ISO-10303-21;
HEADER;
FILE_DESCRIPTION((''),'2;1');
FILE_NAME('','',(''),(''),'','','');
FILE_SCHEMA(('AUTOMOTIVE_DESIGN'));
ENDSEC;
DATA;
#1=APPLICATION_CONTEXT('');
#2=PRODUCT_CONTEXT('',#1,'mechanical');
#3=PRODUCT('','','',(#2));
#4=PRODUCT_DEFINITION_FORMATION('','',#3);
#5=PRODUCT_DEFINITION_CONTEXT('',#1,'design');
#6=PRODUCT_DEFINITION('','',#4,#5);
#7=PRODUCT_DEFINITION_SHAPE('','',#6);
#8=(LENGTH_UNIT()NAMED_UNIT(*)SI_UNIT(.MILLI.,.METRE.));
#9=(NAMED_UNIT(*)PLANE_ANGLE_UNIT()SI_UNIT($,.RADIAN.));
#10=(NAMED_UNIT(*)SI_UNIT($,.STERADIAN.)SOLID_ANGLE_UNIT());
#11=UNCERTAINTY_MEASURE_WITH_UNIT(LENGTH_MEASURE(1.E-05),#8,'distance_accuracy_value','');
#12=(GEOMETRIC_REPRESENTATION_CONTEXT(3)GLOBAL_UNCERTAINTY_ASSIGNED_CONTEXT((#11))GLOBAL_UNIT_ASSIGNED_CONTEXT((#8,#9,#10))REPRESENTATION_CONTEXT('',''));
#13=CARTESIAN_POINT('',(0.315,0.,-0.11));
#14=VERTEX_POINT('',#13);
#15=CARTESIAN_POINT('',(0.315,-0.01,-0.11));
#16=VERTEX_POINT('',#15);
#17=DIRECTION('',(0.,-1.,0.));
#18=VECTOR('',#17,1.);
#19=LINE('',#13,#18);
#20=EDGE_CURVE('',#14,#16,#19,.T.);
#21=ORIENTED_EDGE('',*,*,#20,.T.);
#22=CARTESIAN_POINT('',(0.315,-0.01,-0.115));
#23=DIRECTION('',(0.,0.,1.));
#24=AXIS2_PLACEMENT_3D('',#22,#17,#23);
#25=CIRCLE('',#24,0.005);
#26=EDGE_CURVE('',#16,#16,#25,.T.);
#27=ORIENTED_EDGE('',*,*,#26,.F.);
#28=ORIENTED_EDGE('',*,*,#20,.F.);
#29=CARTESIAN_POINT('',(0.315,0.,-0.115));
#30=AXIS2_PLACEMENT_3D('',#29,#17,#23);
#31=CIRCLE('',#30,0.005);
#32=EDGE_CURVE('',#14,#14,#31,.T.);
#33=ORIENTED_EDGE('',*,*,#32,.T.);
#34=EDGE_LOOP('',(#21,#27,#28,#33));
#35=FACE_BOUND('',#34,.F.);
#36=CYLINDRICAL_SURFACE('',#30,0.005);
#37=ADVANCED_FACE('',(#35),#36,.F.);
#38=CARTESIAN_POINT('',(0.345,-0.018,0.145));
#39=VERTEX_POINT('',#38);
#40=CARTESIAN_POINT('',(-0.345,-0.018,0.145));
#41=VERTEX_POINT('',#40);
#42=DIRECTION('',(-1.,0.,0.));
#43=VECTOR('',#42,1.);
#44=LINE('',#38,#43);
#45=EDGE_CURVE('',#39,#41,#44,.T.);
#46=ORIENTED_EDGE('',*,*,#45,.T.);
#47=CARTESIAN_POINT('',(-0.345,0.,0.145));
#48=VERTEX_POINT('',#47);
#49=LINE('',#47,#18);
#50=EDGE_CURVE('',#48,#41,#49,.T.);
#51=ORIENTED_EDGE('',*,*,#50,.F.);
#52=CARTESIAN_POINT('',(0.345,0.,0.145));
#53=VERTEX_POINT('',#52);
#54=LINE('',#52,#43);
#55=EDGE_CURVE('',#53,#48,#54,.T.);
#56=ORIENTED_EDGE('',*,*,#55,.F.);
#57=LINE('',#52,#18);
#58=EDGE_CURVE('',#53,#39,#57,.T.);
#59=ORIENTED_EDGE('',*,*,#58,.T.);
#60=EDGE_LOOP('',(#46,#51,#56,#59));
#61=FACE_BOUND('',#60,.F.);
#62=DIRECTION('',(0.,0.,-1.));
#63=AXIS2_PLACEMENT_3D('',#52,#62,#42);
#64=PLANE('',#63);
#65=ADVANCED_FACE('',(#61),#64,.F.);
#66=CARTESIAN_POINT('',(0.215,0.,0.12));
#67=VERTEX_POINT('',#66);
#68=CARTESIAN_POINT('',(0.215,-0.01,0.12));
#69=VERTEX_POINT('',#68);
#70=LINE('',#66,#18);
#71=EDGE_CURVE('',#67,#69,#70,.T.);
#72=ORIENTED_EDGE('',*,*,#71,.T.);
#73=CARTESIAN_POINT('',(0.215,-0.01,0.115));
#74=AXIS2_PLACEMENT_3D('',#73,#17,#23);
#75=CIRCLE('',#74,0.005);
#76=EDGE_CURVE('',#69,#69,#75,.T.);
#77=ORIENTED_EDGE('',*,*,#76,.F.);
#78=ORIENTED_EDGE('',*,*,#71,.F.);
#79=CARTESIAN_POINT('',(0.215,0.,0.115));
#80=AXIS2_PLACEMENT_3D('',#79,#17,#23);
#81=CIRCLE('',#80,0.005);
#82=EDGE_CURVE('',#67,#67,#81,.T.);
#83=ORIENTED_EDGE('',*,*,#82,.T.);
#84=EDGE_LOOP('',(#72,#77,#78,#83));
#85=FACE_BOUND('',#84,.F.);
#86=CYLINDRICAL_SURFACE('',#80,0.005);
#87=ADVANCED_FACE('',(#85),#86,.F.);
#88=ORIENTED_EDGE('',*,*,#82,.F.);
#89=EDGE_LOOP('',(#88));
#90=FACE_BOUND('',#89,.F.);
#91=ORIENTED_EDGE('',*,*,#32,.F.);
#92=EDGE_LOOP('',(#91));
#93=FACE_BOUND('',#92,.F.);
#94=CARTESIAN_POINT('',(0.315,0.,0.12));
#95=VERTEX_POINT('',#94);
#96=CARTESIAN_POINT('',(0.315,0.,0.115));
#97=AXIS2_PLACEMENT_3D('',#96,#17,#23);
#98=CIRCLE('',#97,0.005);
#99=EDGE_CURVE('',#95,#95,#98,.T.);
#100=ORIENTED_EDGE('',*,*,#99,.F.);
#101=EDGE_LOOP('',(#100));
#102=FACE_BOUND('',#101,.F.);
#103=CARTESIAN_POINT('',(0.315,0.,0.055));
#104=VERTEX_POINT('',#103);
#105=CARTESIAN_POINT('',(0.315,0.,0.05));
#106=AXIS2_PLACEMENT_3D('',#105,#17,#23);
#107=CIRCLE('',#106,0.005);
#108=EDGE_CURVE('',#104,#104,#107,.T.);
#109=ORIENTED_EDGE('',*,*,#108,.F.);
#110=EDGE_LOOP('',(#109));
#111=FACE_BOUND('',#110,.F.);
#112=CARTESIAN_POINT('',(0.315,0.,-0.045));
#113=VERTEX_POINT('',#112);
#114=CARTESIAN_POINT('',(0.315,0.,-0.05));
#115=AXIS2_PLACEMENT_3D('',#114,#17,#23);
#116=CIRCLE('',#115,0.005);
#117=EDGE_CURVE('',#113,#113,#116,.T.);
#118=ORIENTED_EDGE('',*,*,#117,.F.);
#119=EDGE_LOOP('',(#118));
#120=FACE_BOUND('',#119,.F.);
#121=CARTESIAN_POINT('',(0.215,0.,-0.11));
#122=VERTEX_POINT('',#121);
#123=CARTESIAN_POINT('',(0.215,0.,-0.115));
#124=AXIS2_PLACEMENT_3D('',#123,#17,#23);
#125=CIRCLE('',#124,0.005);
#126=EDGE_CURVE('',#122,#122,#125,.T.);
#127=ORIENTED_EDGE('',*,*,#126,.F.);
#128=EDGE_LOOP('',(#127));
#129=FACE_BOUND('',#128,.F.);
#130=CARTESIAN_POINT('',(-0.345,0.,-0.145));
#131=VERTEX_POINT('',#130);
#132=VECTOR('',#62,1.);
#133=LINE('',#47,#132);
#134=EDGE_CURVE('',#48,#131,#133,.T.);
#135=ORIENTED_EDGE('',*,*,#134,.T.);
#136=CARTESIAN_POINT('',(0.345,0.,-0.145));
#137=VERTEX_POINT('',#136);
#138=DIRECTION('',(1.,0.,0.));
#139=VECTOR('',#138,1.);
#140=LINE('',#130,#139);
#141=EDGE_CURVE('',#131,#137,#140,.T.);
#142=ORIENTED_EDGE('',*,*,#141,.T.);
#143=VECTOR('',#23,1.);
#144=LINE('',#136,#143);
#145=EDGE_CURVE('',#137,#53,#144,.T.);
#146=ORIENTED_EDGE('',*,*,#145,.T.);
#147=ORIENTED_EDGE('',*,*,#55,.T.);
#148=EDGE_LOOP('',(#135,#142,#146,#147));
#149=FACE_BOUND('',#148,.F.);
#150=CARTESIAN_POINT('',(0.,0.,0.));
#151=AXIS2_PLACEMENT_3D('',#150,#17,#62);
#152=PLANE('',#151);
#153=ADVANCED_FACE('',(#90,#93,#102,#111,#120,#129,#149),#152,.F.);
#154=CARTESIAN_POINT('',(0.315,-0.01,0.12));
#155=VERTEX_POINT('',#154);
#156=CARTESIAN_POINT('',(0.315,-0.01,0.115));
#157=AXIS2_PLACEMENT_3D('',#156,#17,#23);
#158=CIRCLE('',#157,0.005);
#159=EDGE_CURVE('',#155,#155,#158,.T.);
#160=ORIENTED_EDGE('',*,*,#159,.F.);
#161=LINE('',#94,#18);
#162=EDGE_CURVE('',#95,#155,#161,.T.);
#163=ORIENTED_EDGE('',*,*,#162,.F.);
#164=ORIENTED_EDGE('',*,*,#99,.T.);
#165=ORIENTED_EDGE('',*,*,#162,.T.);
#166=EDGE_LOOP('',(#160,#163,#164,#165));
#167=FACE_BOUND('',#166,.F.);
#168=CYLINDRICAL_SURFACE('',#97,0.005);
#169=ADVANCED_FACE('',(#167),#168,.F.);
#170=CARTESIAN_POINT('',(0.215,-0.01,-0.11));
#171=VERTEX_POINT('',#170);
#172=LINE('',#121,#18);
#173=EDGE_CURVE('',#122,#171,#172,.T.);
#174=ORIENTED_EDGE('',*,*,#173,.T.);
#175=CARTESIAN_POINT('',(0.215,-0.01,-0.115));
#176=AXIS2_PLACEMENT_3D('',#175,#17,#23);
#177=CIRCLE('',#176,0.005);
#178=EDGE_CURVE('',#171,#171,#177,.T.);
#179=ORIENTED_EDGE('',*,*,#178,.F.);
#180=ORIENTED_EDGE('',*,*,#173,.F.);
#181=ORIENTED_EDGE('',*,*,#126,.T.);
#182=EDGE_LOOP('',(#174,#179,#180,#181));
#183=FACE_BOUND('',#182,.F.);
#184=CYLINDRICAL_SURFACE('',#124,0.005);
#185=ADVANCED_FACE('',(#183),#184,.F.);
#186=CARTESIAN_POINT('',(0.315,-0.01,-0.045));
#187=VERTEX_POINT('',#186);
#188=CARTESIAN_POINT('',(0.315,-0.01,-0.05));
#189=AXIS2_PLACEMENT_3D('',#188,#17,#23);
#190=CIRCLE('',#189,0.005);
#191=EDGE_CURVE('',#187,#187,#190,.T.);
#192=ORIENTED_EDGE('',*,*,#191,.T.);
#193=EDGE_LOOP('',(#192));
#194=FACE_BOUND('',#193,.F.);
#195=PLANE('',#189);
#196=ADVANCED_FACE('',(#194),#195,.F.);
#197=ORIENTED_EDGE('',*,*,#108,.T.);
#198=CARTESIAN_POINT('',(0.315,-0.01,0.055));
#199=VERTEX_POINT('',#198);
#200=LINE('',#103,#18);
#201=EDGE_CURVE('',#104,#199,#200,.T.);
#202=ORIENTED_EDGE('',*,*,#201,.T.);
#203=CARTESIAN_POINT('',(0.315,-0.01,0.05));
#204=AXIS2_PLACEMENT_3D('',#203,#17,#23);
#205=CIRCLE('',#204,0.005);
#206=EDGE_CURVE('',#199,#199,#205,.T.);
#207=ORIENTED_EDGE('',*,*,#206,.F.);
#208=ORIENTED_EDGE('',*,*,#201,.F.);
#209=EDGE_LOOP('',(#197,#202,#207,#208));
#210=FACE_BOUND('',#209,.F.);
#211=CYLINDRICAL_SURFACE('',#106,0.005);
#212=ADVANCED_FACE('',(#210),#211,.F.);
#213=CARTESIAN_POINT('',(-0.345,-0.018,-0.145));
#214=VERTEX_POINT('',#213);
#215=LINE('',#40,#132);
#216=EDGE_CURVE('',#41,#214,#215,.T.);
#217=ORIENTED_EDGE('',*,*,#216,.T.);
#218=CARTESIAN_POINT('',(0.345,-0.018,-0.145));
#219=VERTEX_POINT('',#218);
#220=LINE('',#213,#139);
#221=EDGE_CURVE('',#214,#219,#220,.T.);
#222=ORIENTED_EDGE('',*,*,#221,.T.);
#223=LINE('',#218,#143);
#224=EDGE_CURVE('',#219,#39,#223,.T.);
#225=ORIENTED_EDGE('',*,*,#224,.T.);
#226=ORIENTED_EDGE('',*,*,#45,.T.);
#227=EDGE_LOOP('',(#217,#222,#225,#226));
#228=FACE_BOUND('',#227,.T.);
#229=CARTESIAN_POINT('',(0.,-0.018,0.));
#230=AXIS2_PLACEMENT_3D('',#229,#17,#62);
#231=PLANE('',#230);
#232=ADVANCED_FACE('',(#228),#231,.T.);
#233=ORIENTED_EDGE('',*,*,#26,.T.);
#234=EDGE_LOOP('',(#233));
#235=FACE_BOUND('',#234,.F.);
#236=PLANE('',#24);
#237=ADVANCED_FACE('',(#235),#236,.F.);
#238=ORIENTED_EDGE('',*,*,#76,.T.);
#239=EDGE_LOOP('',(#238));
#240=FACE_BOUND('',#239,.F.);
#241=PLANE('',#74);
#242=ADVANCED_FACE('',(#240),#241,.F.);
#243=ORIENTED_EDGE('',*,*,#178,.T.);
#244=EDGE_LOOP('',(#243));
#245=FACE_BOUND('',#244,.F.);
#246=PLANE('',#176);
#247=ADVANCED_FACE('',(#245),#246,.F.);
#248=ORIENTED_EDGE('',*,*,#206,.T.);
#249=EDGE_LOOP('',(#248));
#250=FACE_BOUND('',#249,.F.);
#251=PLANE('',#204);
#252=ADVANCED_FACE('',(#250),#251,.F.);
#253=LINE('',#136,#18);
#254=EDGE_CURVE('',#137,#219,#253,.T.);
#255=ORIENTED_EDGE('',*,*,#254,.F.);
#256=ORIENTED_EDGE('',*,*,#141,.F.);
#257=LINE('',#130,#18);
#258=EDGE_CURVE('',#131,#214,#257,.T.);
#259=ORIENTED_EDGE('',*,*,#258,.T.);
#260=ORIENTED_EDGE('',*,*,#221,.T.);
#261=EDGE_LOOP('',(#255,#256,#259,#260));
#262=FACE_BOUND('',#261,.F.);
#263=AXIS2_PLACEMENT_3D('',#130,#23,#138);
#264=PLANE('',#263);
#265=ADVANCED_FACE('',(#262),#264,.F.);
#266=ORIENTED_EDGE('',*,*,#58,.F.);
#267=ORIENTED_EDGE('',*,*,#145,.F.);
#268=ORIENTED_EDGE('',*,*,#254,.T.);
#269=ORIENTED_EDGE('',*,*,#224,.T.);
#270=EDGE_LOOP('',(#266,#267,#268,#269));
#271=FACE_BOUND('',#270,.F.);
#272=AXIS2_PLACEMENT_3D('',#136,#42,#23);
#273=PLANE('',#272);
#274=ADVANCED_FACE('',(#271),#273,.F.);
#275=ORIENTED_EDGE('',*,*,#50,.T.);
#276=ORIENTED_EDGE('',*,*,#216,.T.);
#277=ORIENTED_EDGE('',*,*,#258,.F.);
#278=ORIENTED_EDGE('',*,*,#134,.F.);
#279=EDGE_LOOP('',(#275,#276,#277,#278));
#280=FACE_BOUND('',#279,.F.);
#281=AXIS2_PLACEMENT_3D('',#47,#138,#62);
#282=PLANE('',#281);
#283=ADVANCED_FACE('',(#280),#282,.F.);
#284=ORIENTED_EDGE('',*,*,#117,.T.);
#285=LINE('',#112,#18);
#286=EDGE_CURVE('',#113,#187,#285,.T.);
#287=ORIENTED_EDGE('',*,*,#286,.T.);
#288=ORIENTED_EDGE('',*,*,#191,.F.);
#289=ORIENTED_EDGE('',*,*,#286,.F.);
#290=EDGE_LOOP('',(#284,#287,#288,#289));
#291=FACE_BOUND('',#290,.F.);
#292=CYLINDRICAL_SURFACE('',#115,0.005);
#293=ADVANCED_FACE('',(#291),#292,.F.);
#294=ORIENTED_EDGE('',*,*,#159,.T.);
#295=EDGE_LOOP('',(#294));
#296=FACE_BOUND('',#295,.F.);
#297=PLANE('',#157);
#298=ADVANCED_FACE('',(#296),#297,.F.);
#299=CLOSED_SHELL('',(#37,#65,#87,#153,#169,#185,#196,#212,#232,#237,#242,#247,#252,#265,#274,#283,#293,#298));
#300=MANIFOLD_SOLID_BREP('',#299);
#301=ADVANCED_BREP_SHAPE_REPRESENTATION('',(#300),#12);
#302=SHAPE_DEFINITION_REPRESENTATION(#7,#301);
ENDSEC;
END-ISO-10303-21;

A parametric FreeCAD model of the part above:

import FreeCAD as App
import Part
import Sketcher

V = App.Vector


def add_polygon(sketch, points):
    """Adds a closed chain of lines whose ends are joined by coincident constraints."""
    first, n = sketch.GeometryCount, len(points)
    for a, b in zip(points, points[1:] + points[:1]):
        sketch.addGeometry(Part.LineSegment(App.Vector(*a, 0), App.Vector(*b, 0)), False)
    for i in range(n):
        sketch.addConstraint(Sketcher.Constraint("Coincident", first + i, 2, first + (i + 1) % n, 1))

doc = App.newDocument("Part")
body = doc.addObject("PartDesign::Body", "Body")

sketch1 = body.newObject("Sketcher::SketchObject", "Sketch")
sketch1.AttachmentSupport = (doc.getObject("XZ_Plane"), [""])
sketch1.MapMode = "FlatFace"
add_polygon(sketch1, [(-0.34, 0.14), (-0.34, -0.14), (0.34, -0.14), (0.34, 0.14)])
sketch1.addConstraint(Sketcher.Constraint("Vertical", 0))
sketch1.addConstraint(Sketcher.Constraint("Horizontal", 1))
sketch1.addConstraint(Sketcher.Constraint("Vertical", 2))
sketch1.addConstraint(Sketcher.Constraint("Horizontal", 3))
sketch1.addConstraint(Sketcher.Constraint("Symmetric", 0, 2, 2, 2, -1, 1))
sketch1.addConstraint(Sketcher.Constraint("DistanceX", 0, 2, -1, 1, 0.345))
sketch1.addConstraint(Sketcher.Constraint("DistanceY", 0, 2, 0, 1, 0.29))
pad1 = body.newObject("PartDesign::Pad", "Pad")
pad1.Profile = sketch1
pad1.Length = 0.018

sketch2 = body.newObject("Sketcher::SketchObject", "Sketch001")
sketch2.AttachmentSupport = (doc.getObject("XZ_Plane"), [""])
sketch2.MapMode = "FlatFace"
sketch2.addGeometry(Part.Circle(V(0.315, 0.05, 0), V(0, 0, 1), 0.005), False)
sketch2.addConstraint(Sketcher.Constraint("Diameter", 0, 0.01))
sketch2.addConstraint(Sketcher.Constraint("DistanceY", -1, 1, 0, 3, 0.05))
sketch2.addConstraint(Sketcher.Constraint("DistanceX", -1, 1, 0, 3, 0.315))
doc.recompute()
hole = body.newObject("PartDesign::Hole", "Hole")
hole.Profile = sketch2
hole.ThreadType = "None"
hole.Diameter = 0.01
hole.DepthType = "Dimension"
hole.Depth = 0.01
hole.DrillPoint = "Flat"
hole.Reversed = True

sketch3 = body.newObject("Sketcher::SketchObject", "Sketch002")
sketch3.AttachmentSupport = (doc.getObject("XZ_Plane"), [""])
sketch3.MapMode = "FlatFace"
sketch3.addGeometry(Part.Circle(V(0.315, -0.05, 0), V(0, 0, 1), 0.005), False)
sketch3.addConstraint(Sketcher.Constraint("Diameter", 0, 0.01))
sketch3.addConstraint(Sketcher.Constraint("DistanceY", 0, 3, -1, 1, 0.05))
sketch3.addConstraint(Sketcher.Constraint("DistanceX", -1, 1, 0, 3, 0.315))
doc.recompute()
hole2 = body.newObject("PartDesign::Hole", "Hole001")
hole2.Profile = sketch3
hole2.ThreadType = "None"
hole2.Diameter = 0.01
hole2.DepthType = "Dimension"
hole2.Depth = 0.01
hole2.DrillPoint = "Flat"
hole2.Reversed = True

sketch4 = body.newObject("Sketcher::SketchObject", "Sketch003")
sketch4.AttachmentSupport = (doc.getObject("XZ_Plane"), [""])
sketch4.MapMode = "FlatFace"
sketch4.addGeometry(Part.Circle(V(0.315, -0.115, 0), V(0, 0, 1), 0.005), False)
sketch4.addConstraint(Sketcher.Constraint("Diameter", 0, 0.01))
sketch4.addConstraint(Sketcher.Constraint("DistanceX", -1, 1, 0, 3, 0.315))
sketch4.addConstraint(Sketcher.Constraint("DistanceY", 0, 3, -1, 1, 0.115))
doc.recompute()
hole3 = body.newObject("PartDesign::Hole", "Hole002")
hole3.Profile = sketch4
hole3.ThreadType = "None"
hole3.Diameter = 0.01
hole3.DepthType = "Dimension"
hole3.Depth = 0.01
hole3.DrillPoint = "Flat"
hole3.Reversed = True

sketch5 = body.newObject("Sketcher::SketchObject", "Sketch004")
sketch5.AttachmentSupport = (doc.getObject("XZ_Plane"), [""])
sketch5.MapMode = "FlatFace"
sketch5.addGeometry(Part.Circle(V(0.215, -0.115, 0), V(0, 0, 1), 0.005), False)
sketch5.addConstraint(Sketcher.Constraint("Diameter", 0, 0.01))
sketch5.addConstraint(Sketcher.Constraint("DistanceX", -1, 1, 0, 3, 0.215))
sketch5.addConstraint(Sketcher.Constraint("DistanceY", 0, 3, -1, 1, 0.115))
doc.recompute()
hole4 = body.newObject("PartDesign::Hole", "Hole003")
hole4.Profile = sketch5
hole4.ThreadType = "None"
hole4.Diameter = 0.01
hole4.DepthType = "Dimension"
hole4.Depth = 0.01
hole4.DrillPoint = "Flat"
hole4.Reversed = True

sketch6 = body.newObject("Sketcher::SketchObject", "Sketch005")
sketch6.AttachmentSupport = (doc.getObject("XZ_Plane"), [""])
sketch6.MapMode = "FlatFace"
sketch6.addGeometry(Part.Circle(V(0.315, 0.115, 0), V(0, 0, 1), 0.005), False)
sketch6.addConstraint(Sketcher.Constraint("Diameter", 0, 0.01))
sketch6.addConstraint(Sketcher.Constraint("DistanceX", -1, 1, 0, 3, 0.315))
sketch6.addConstraint(Sketcher.Constraint("DistanceY", -1, 1, 0, 3, 0.115))
doc.recompute()
hole5 = body.newObject("PartDesign::Hole", "Hole004")
hole5.Profile = sketch6
hole5.ThreadType = "None"
hole5.Diameter = 0.01
hole5.DepthType = "Dimension"
hole5.Depth = 0.01
hole5.DrillPoint = "Flat"
hole5.Reversed = True

sketch7 = body.newObject("Sketcher::SketchObject", "Sketch006")
sketch7.AttachmentSupport = (doc.getObject("XZ_Plane"), [""])
sketch7.MapMode = "FlatFace"
sketch7.addGeometry(Part.Circle(V(0.215, 0.115, 0), V(0, 0, 1), 0.005), False)
sketch7.addConstraint(Sketcher.Constraint("Diameter", 0, 0.01))
sketch7.addConstraint(Sketcher.Constraint("DistanceX", -1, 1, 0, 3, 0.215))
sketch7.addConstraint(Sketcher.Constraint("DistanceY", -1, 1, 0, 3, 0.115))
doc.recompute()
hole6 = body.newObject("PartDesign::Hole", "Hole005")
hole6.Profile = sketch7
hole6.ThreadType = "None"
hole6.Diameter = 0.01
hole6.DepthType = "Dimension"
hole6.Depth = 0.01
hole6.DrillPoint = "Flat"
hole6.Reversed = True

doc.recompute()
